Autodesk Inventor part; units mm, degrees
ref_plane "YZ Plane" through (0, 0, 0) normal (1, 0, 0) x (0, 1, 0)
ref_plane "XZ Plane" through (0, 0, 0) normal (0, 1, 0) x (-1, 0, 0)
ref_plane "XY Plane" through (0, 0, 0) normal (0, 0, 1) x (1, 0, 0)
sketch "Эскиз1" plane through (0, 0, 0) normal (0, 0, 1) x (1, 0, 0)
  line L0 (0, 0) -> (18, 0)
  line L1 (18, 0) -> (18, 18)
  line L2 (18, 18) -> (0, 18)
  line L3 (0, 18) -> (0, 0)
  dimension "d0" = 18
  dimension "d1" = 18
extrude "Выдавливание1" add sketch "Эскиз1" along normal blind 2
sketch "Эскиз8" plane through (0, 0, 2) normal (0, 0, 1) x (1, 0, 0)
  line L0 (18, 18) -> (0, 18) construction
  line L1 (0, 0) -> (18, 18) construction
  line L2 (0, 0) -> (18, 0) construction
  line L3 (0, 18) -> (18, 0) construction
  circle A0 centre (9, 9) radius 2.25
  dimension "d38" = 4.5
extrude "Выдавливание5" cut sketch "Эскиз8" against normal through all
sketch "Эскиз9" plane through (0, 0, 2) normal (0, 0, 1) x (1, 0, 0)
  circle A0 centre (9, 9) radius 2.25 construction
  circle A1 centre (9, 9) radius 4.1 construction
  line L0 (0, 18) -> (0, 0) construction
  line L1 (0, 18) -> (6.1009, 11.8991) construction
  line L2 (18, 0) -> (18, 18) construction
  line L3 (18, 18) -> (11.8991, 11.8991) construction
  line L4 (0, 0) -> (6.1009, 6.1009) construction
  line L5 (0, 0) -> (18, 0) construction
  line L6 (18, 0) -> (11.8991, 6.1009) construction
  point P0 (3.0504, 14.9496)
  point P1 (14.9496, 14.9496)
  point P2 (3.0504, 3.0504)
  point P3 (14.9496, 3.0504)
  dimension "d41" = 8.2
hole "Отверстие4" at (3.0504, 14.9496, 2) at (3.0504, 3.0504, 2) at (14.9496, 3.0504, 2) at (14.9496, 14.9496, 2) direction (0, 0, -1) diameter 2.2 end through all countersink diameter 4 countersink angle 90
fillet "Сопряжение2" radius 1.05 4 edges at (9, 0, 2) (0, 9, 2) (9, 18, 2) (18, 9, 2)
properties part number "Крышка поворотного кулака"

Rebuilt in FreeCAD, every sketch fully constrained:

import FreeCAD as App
import Part
import Sketcher
from FreeCAD import Vector


def edges_at(feature, points):
    """Names of the edges that pass closest to the given points."""
    edges = feature.Shape.Edges
    near = lambda p: min(range(len(edges)), key=lambda i: edges[i].distToShape(Part.Vertex(*p))[0])
    return sorted({f"Edge{near(p) + 1}" for p in points})

doc = App.newDocument("Part")
body = doc.addObject("PartDesign::Body", "Body")

# Sketch on XY plane
sketch1 = body.newObject("Sketcher::SketchObject", "Sketch")
sketch1.AttachmentSupport = (doc.getObject("XY_Plane"), [""])
sketch1.MapMode = "FlatFace"
sketch1.addGeometry([
    Part.LineSegment(Vector(0, 18, 0), Vector(0, 0, 0)),
    Part.LineSegment(Vector(0, 0, 0), Vector(18, 0, 0)),
    Part.LineSegment(Vector(18, 0, 0), Vector(18, 18, 0)),
    Part.LineSegment(Vector(18, 18, 0), Vector(0, 18, 0)),
], False)
sketch1.addConstraint([
    Sketcher.Constraint("Coincident", 0, 2, 1, 1),
    Sketcher.Constraint("Coincident", 1, 2, 2, 1),
    Sketcher.Constraint("Coincident", 2, 2, 3, 1),
    Sketcher.Constraint("Coincident", 3, 2, 0, 1),
    Sketcher.Constraint("Vertical", 0),
    Sketcher.Constraint("Horizontal", 1),
    Sketcher.Constraint("Vertical", 2),
    Sketcher.Constraint("Horizontal", 3),
    Sketcher.Constraint("Coincident", 0, 2, -1, 1),
    Sketcher.Constraint("Equal", 3, 0),
    Sketcher.Constraint("DistanceX", 1, 1, 1, 2, 18.0),
])
pad1 = body.newObject("PartDesign::Pad", "Pad")
pad1.Profile = sketch1
pad1.Length = 2

# Sketch on XY plane
sketch2 = body.newObject("Sketcher::SketchObject", "Sketch001")
sketch2.AttachmentSupport = (doc.getObject("XY_Plane"), [""])
sketch2.MapMode = "FlatFace"
sketch2.AttachmentOffset = App.Placement(Vector(0, 0, 2), App.Rotation())
sketch2.addGeometry(Part.Circle(Vector(9, 9, 0), Vector(0, 0, 1), 2.25), False)
sketch2.addConstraint([
    Sketcher.Constraint("Diameter", 0, 4.5),
    Sketcher.Constraint("DistanceX", -1, 1, 0, 3, 9.0),
    Sketcher.Constraint("DistanceY", -1, 1, 0, 3, 9.0),
])
pocket1 = body.newObject("PartDesign::Pocket", "Pocket")
pocket1.Profile = sketch2
pocket1.Type = "ThroughAll"

# Sketch on XY plane
sketch3 = body.newObject("Sketcher::SketchObject", "Sketch002")
sketch3.AttachmentSupport = (doc.getObject("XY_Plane"), [""])
sketch3.MapMode = "FlatFace"
sketch3.AttachmentOffset = App.Placement(Vector(0, 0, 2), App.Rotation())
sketch3.addGeometry([
    Part.Circle(Vector(3.0504, 14.9496, 0), Vector(0, 0, 1), 1.1),
    Part.Circle(Vector(3.0504, 3.0504, 0), Vector(0, 0, 1), 1.1),
    Part.Circle(Vector(14.9496, 3.0504, 0), Vector(0, 0, 1), 1.1),
    Part.Circle(Vector(14.9496, 14.9496, 0), Vector(0, 0, 1), 1.1),
], False)
sketch3.addConstraint([
    Sketcher.Constraint("Equal", 0, 1),
    Sketcher.Constraint("Equal", 1, 2),
    Sketcher.Constraint("Equal", 2, 3),
    Sketcher.Constraint("Horizontal", 1, 3, 2, 3),
    Sketcher.Constraint("Horizontal", 0, 3, 3, 3),
    Sketcher.Constraint("Vertical", 0, 3, 1, 3),
    Sketcher.Constraint("Vertical", 2, 3, 3, 3),
    Sketcher.Constraint("Diameter", 0, 2.2),
    Sketcher.Constraint("DistanceX", -1, 1, 0, 3, 3.0504),
    Sketcher.Constraint("DistanceY", -1, 1, 0, 3, 14.9496),
    Sketcher.Constraint("DistanceY", -1, 1, 1, 3, 3.0504),
    Sketcher.Constraint("DistanceX", -1, 1, 2, 3, 14.9496),
])
doc.recompute()
hole = body.newObject("PartDesign::Hole", "Hole")
hole.Profile = sketch3
hole.ThreadType = "None"
hole.Diameter = 2.2
hole.DepthType = "ThroughAll"
hole.HoleCutType = "Countersink"
hole.HoleCutDiameter = 4
hole.HoleCutCountersinkAngle = 90
doc.recompute()

fillet = body.newObject("PartDesign::Fillet", "Fillet")
fillet.Base = (hole, edges_at(hole, [
    (9, 0, 2),
    (0, 9, 2),
    (9, 18, 2),
    (18, 9, 2),
]))
fillet.Radius = 1.05

doc.recompute()
